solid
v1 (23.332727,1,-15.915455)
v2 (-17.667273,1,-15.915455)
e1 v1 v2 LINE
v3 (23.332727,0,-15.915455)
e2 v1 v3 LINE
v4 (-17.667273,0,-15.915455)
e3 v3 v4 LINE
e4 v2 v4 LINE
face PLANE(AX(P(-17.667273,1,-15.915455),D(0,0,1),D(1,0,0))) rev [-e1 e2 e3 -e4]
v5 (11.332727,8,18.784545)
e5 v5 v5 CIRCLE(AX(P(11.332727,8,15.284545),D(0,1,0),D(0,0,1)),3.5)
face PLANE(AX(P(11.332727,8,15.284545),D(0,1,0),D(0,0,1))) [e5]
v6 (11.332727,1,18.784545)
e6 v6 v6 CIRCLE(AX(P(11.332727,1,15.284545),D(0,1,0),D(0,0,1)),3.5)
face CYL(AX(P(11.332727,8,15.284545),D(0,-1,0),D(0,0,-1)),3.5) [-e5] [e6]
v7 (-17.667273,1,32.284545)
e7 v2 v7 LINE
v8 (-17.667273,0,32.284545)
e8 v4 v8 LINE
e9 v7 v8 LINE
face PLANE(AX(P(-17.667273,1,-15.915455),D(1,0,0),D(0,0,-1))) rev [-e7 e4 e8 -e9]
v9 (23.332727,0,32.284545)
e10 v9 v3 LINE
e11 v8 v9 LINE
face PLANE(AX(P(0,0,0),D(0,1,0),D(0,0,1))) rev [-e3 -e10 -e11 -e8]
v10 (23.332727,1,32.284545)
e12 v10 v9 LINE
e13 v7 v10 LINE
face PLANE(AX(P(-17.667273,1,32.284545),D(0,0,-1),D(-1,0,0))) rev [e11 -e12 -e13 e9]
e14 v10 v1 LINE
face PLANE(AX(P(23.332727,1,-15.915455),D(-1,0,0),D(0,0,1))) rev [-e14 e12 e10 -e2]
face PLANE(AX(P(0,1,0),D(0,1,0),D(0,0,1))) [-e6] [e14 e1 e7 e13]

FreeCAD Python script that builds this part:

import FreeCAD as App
import Part
import Sketcher


def add_polygon(sketch, points):
    """Adds a closed chain of lines whose ends are joined by coincident constraints."""
    first, n = sketch.GeometryCount, len(points)
    for a, b in zip(points, points[1:] + points[:1]):
        sketch.addGeometry(Part.LineSegment(App.Vector(*a, 0), App.Vector(*b, 0)), False)
    for i in range(n):
        sketch.addConstraint(Sketcher.Constraint("Coincident", first + i, 2, first + (i + 1) % n, 1))

doc = App.newDocument("Part")
body = doc.addObject("PartDesign::Body", "Body")

# Sketch on XZ plane
sketch1 = body.newObject("Sketcher::SketchObject", "Sketch")
sketch1.AttachmentSupport = (doc.getObject("XZ_Plane"), [""])
sketch1.MapMode = "FlatFace"
add_polygon(sketch1, [(-18, -16), (-18, 32), (23, 32), (23, -16)])  # lines 0-3
sketch1.addConstraint([
    Sketcher.Constraint("Vertical", 0),
    Sketcher.Constraint("Horizontal", 1),
    Sketcher.Constraint("Vertical", 2),
    Sketcher.Constraint("Horizontal", 3),
    Sketcher.Constraint("DistanceX", 1, 1, 1, 2, 41.0),
    Sketcher.Constraint("DistanceY", 0, 1, 0, 2, 48.2),
    Sketcher.Constraint("DistanceX", 0, 2, -1, 1, 17.667273),
    Sketcher.Constraint("DistanceY", -1, 1, 0, 2, 32.284545),
])
pad1 = body.newObject("PartDesign::Pad", "Pad")
pad1.Profile = sketch1
pad1.Length = 1
pad1.Reversed = True

# Sketch on XZ plane
sketch2 = body.newObject("Sketcher::SketchObject", "Sketch001")
sketch2.AttachmentSupport = (doc.getObject("XZ_Plane"), [""])
sketch2.MapMode = "FlatFace"
sketch2.AttachmentOffset = App.Placement(App.Vector(0, 0, -1), App.Rotation())
sketch2.addGeometry(Part.Circle(App.Vector(11.3, 15.3, 0), App.Vector(0, 0, 1), 3.5), False)
sketch2.addConstraint([
    Sketcher.Constraint("Diameter", 0, 7.0),
    Sketcher.Constraint("DistanceX", -1, 1, 0, 3, 11.332727),
    Sketcher.Constraint("DistanceY", -1, 1, 0, 3, 15.284545),
])
pad2 = body.newObject("PartDesign::Pad", "Pad001")
pad2.Profile = sketch2
pad2.Length = 7
pad2.Reversed = True

doc.recompute()
